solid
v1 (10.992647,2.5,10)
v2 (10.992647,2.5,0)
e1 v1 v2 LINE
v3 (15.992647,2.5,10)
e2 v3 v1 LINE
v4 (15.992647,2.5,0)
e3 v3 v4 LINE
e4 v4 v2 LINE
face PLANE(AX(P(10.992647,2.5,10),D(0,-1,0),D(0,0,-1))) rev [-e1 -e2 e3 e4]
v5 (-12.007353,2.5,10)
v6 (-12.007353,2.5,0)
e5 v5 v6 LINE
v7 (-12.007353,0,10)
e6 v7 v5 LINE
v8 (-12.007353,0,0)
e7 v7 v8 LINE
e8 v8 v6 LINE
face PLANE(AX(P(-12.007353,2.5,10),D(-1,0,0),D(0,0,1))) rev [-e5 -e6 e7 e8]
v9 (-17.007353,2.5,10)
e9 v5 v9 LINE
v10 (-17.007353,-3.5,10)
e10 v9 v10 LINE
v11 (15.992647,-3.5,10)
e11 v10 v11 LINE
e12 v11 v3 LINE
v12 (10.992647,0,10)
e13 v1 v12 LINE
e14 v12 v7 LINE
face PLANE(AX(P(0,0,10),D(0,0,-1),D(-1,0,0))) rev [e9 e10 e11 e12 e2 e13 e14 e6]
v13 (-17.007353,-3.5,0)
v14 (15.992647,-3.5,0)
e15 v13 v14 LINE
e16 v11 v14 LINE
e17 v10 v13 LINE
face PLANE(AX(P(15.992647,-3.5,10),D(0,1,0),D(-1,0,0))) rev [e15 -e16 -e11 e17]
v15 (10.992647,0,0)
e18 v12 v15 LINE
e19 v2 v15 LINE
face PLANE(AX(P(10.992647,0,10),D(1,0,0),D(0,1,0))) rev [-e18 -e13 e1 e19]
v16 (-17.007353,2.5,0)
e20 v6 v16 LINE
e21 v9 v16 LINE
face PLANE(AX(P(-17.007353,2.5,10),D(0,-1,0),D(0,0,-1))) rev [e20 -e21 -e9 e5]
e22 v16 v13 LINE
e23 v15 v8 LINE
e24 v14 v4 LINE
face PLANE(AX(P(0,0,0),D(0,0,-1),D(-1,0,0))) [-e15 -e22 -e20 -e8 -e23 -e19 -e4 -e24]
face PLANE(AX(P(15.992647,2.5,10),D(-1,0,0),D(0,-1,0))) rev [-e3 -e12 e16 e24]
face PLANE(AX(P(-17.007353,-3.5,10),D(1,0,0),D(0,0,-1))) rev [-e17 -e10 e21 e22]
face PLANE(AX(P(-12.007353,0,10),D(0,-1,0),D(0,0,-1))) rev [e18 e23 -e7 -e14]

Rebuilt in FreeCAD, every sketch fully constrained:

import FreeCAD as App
import Part
import Sketcher

V = App.Vector

doc = App.newDocument("Part")
body = doc.addObject("PartDesign::Body", "Body")

sketch1 = body.newObject("Sketcher::SketchObject", "Sketch")
sketch1.AttachmentSupport = (doc.getObject("XY_Plane"), [""])
sketch1.MapMode = "FlatFace"
sketch1.addGeometry([
    Part.LineSegment(V(-12.007353, 2.5, 0), V(-17.007353, 2.5, 0)),
    Part.LineSegment(V(-17.007353, 2.5, 0), V(-17.007353, -3.5, 0)),
    Part.LineSegment(V(-17.007353, -3.5, 0), V(15.992647, -3.5, 0)),
    Part.LineSegment(V(15.992647, -3.5, 0), V(15.992647, 2.5, 0)),
    Part.LineSegment(V(15.992647, 2.5, 0), V(10.992647, 2.5, 0)),
    Part.LineSegment(V(10.992647, 2.5, 0), V(10.992647, 0, 0)),
    Part.LineSegment(V(10.992647, 0, 0), V(-12.007353, 0, 0)),
    Part.LineSegment(V(-12.007353, 0, 0), V(-12.007353, 2.5, 0)),
], False)
sketch1.addConstraint([
    Sketcher.Constraint("Coincident", 0, 2, 1, 1),
    Sketcher.Constraint("Coincident", 1, 2, 2, 1),
    Sketcher.Constraint("Coincident", 2, 2, 3, 1),
    Sketcher.Constraint("Coincident", 3, 2, 4, 1),
    Sketcher.Constraint("Coincident", 4, 2, 5, 1),
    Sketcher.Constraint("Coincident", 5, 2, 6, 1),
    Sketcher.Constraint("Coincident", 6, 2, 7, 1),
    Sketcher.Constraint("Coincident", 7, 2, 0, 1),
    Sketcher.Constraint("Horizontal", 0),
    Sketcher.Constraint("Vertical", 1),
    Sketcher.Constraint("Horizontal", 2),
    Sketcher.Constraint("Vertical", 3),
    Sketcher.Constraint("Horizontal", 4),
    Sketcher.Constraint("Vertical", 5),
    Sketcher.Constraint("Horizontal", 6),
    Sketcher.Constraint("Vertical", 7),
    Sketcher.Constraint("PointOnObject", 5, 2, -1),
    Sketcher.Constraint("Horizontal", 0, 2, 3, 2),
    Sketcher.Constraint("Equal", 0, 4),
    Sketcher.Constraint("DistanceX", 0, 2, 0, 1, 5.0),
    Sketcher.Constraint("DistanceX", 2, 1, 2, 2, 33.0),
    Sketcher.Constraint("DistanceY", 1, 2, 1, 1, 6.0),
    Sketcher.Constraint("DistanceY", 5, 2, 5, 1, 2.5),
    Sketcher.Constraint("DistanceX", 0, 2, -1, 1, 17.007353),
])
pad1 = body.newObject("PartDesign::Pad", "Pad")
pad1.Profile = sketch1
pad1.Length = 10

doc.recompute()
